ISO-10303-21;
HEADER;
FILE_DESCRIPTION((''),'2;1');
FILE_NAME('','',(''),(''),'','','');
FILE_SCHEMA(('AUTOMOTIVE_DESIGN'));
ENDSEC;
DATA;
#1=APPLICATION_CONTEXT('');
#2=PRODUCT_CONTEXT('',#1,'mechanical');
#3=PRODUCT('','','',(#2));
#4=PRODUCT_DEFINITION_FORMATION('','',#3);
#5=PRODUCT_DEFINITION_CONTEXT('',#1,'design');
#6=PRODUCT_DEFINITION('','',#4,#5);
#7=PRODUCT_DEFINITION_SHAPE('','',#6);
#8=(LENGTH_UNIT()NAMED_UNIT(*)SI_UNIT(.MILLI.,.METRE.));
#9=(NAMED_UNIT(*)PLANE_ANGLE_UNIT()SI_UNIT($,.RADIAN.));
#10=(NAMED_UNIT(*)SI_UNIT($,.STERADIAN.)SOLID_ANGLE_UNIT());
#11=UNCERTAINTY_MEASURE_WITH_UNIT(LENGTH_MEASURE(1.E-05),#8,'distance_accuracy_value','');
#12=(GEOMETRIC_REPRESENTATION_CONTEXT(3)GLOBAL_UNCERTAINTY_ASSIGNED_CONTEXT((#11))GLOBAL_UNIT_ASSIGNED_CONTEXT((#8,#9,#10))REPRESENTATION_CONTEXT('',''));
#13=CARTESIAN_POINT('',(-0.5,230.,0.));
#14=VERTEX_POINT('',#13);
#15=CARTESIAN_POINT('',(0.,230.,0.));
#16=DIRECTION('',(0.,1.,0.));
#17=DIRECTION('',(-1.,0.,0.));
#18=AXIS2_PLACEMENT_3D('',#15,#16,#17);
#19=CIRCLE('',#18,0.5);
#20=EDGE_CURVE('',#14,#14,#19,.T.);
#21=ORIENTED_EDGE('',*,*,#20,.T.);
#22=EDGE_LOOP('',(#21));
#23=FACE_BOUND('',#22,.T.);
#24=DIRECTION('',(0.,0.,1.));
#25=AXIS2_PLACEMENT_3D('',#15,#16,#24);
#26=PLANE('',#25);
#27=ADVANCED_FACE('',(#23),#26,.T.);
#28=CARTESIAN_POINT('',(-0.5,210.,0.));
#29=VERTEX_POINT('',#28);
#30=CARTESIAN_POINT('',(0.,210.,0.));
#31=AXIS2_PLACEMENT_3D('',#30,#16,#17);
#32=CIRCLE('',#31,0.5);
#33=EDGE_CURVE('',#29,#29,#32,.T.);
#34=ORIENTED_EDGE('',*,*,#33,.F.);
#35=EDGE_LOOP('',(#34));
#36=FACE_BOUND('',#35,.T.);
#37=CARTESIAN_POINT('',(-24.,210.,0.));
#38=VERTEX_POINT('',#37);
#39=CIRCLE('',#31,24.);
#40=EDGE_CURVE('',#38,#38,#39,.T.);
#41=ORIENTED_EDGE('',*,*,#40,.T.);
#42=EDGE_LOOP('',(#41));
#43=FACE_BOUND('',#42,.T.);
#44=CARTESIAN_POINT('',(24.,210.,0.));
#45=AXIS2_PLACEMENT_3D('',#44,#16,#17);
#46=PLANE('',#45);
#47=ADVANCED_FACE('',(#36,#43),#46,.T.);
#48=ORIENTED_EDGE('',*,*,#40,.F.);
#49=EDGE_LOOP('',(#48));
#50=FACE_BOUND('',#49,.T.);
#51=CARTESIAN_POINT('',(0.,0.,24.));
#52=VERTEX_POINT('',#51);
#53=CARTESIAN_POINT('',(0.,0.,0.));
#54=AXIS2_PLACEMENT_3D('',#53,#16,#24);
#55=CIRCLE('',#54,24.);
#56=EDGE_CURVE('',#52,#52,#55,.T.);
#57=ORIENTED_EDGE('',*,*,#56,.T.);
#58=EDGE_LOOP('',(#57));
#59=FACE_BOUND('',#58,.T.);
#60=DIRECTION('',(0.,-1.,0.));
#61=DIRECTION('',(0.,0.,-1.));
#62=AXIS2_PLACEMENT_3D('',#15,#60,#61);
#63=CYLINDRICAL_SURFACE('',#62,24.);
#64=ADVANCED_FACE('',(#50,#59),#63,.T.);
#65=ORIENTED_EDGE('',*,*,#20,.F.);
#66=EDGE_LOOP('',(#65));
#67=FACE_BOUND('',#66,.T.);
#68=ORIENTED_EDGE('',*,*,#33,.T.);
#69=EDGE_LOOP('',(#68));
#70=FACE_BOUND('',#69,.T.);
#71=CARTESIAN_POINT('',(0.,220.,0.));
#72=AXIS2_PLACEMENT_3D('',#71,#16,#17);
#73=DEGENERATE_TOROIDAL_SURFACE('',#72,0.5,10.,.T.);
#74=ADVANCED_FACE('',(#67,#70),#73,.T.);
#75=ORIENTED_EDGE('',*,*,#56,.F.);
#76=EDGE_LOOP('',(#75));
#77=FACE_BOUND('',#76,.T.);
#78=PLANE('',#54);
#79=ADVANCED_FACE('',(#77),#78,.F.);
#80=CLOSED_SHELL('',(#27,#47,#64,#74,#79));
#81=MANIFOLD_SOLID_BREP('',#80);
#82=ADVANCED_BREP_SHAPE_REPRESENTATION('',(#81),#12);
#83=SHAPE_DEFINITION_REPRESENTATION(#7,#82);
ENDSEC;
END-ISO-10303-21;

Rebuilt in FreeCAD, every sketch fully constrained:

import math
import FreeCAD as App
import Part
import Sketcher

V = App.Vector
Q = App.Units.Quantity

doc = App.newDocument("Part")
body = doc.addObject("PartDesign::Body", "Body")

# Sketch on XZ plane
sketch1 = doc.addObject("Sketcher::SketchObject", "Sketch")
body.addObject(sketch1)
sketch1.AttachmentSupport = (doc.XZ_Plane, [""])
sketch1.MapMode = "FlatFace"
sketch1.addGeometry(Part.Circle(V(0, 0, 0), V(0, 0, 1), 24), False)
sketch1.addConstraint([
    Sketcher.Constraint("Coincident", 0, 3, -1, 1),
    Sketcher.Constraint("Diameter", 0, Q("48 mm")),
])
pad1 = doc.addObject("PartDesign::Pad", "Pad")
body.addObject(pad1)
pad1.Profile = sketch1
pad1.Length = 230
pad1.Reversed = True

# Sketch on XY plane
sketch2 = doc.addObject("Sketcher::SketchObject", "Sketch001")
body.addObject(sketch2)
sketch2.AttachmentSupport = (doc.XY_Plane, [""])
sketch2.MapMode = "FlatFace"
sketch2.addGeometry([
    Part.LineSegment(V(24, 210, 0), V(24, 230, 0)),
    Part.LineSegment(V(24, 230, 0), V(0, 230, 0)),
    Part.ArcOfCircle(Part.Circle(V(0, 220, 0), V(0, 0, 1), 10), math.radians(-90), math.radians(90)),
    Part.LineSegment(V(0, 210, 0), V(24, 210, 0)),
], False)
sketch2.addConstraint([
    Sketcher.Constraint("Coincident", 0, 2, 1, 1),
    Sketcher.Constraint("Tangent", 1, 2, 2, 2),
    Sketcher.Constraint("Tangent", 2, 1, 3, 1),
    Sketcher.Constraint("Coincident", 3, 2, 0, 1),
    Sketcher.Constraint("Vertical", 0),
    Sketcher.Constraint("Horizontal", 1),
    Sketcher.Constraint("Horizontal", 3),
    Sketcher.Constraint("Radius", 2, Q("10 mm")),
    Sketcher.Constraint("DistanceX", 1, 2, 1, 1, Q("23.5 mm")),
    Sketcher.Constraint("DistanceY", -1, 1, 2, 3, Q("220 mm")),
    Sketcher.Constraint("DistanceX", -1, 1, 0, 2, Q("24 mm")),
])
groove = doc.addObject("PartDesign::Groove", "Groove")
body.addObject(groove)
groove.Profile = sketch2
groove.ReferenceAxis = (sketch2, ["V_Axis"])
groove.Angle = 360

doc.recompute()
